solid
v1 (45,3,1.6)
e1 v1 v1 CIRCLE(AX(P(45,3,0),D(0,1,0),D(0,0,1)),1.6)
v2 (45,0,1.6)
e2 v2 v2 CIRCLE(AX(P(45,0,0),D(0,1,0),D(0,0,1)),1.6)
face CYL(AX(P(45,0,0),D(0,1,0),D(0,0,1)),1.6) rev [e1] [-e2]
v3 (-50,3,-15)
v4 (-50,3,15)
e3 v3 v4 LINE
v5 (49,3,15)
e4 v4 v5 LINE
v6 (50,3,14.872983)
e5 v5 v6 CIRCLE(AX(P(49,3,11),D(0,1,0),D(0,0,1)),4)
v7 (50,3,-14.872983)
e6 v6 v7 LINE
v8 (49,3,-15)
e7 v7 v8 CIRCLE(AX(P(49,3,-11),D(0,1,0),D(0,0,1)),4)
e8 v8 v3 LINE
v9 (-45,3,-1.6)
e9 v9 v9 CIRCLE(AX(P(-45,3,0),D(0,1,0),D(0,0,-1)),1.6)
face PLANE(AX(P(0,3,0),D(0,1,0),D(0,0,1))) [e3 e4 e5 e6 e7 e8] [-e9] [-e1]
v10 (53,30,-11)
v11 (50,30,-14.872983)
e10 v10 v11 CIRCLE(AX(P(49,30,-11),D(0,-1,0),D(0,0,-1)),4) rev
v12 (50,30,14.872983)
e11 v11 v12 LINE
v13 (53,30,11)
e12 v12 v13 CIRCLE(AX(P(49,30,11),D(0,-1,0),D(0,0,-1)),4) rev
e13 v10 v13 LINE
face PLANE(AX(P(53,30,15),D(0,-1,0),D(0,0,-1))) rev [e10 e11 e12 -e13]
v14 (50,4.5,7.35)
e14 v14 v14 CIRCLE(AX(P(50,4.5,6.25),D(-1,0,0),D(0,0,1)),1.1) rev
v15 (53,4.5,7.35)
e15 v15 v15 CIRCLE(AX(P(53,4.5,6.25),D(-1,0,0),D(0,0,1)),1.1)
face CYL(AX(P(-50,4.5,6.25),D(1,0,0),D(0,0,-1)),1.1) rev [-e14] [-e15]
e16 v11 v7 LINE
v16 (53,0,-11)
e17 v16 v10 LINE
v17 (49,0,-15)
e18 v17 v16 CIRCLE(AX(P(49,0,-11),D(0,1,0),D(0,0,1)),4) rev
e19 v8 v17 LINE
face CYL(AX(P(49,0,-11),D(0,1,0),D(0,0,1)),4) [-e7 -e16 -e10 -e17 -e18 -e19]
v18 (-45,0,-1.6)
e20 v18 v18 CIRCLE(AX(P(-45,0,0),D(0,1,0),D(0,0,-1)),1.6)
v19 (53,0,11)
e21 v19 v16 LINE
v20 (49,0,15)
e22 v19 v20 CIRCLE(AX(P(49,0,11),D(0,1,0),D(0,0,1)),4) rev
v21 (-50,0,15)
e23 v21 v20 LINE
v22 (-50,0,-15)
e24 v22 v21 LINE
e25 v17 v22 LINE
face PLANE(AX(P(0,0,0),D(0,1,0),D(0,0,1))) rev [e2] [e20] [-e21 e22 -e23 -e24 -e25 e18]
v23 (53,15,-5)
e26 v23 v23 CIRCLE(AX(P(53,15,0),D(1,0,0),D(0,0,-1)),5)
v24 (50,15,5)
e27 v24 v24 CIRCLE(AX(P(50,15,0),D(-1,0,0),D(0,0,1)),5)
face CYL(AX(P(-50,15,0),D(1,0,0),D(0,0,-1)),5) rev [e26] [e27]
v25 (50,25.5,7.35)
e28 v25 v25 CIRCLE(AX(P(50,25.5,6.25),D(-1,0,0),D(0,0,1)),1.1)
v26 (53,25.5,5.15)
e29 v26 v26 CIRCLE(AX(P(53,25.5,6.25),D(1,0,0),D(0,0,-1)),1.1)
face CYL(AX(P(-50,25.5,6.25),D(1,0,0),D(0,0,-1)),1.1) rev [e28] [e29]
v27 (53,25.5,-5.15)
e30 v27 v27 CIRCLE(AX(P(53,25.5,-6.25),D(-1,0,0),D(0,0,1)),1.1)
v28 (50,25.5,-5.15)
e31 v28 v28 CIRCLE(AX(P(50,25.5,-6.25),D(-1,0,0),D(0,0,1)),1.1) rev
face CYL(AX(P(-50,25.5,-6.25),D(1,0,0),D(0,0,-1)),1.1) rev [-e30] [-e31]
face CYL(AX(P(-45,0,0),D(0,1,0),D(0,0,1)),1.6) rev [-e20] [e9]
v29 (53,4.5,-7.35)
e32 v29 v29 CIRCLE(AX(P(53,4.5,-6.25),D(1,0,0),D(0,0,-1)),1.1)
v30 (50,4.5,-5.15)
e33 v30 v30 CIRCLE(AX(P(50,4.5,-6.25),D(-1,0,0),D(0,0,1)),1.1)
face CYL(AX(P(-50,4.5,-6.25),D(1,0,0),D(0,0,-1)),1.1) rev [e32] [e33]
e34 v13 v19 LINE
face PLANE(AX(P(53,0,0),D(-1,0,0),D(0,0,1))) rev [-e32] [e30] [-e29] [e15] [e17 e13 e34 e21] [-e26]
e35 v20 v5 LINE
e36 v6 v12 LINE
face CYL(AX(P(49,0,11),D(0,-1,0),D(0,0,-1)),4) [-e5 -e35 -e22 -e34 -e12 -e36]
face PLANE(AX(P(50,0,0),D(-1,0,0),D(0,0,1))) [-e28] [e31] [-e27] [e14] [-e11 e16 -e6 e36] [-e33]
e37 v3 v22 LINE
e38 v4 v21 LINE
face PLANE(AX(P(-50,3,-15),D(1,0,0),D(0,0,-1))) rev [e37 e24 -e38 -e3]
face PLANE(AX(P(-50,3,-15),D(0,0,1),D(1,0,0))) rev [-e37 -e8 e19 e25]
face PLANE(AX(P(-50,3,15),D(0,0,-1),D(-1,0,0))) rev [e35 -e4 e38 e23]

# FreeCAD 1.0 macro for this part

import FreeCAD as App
import Part
import Sketcher


def edges_at(feature, points):
    """Names of the edges that pass closest to the given points."""
    edges = feature.Shape.Edges
    near = lambda p: min(range(len(edges)), key=lambda i: edges[i].distToShape(Part.Vertex(*p))[0])
    return sorted({f"Edge{near(p) + 1}" for p in points})


def add_polygon(sketch, points):
    """Adds a closed chain of lines whose ends are joined by coincident constraints."""
    first, n = sketch.GeometryCount, len(points)
    for a, b in zip(points, points[1:] + points[:1]):
        sketch.addGeometry(Part.LineSegment(App.Vector(*a, 0), App.Vector(*b, 0)), False)
    for i in range(n):
        sketch.addConstraint(Sketcher.Constraint("Coincident", first + i, 2, first + (i + 1) % n, 1))

doc = App.newDocument("Part")
body = doc.addObject("PartDesign::Body", "Body")

# Sketch on XZ plane
sketch1 = body.newObject("Sketcher::SketchObject", "Sketch")
sketch1.AttachmentSupport = (doc.getObject("XZ_Plane"), [""])
sketch1.MapMode = "FlatFace"
add_polygon(sketch1, [(-50, -15), (-50, 15), (50, 15), (50, -15)])  # lines 0-3
sketch1.addConstraint([
    Sketcher.Constraint("Vertical", 0),
    Sketcher.Constraint("Horizontal", 1),
    Sketcher.Constraint("Vertical", 2),
    Sketcher.Constraint("Horizontal", 3),
    Sketcher.Constraint("Symmetric", 0, 2, 2, 2, -1, 1),
    Sketcher.Constraint("DistanceX", 1, 1, 1, 2, 100.0),
    Sketcher.Constraint("DistanceY", 0, 1, 0, 2, 30.0),
])
pad1 = body.newObject("PartDesign::Pad", "Pad")
pad1.Profile = sketch1
pad1.Length = 3
pad1.Reversed = True

# Sketch on XZ plane
sketch2 = body.newObject("Sketcher::SketchObject", "Sketch001")
sketch2.AttachmentSupport = (doc.getObject("XZ_Plane"), [""])
sketch2.MapMode = "FlatFace"
sketch2.AttachmentOffset = App.Placement(App.Vector(0, 0, -3), App.Rotation())
sketch2.addGeometry([
    Part.Circle(App.Vector(45, 0, 0), App.Vector(0, 0, 1), 1.6),
    Part.Circle(App.Vector(-45, 0, 0), App.Vector(0, 0, 1), 1.6),
], False)
sketch2.addConstraint([
    Sketcher.Constraint("Equal", 0, 1),
    Sketcher.Constraint("Symmetric", 0, 3, 1, 3, -1, 1),
    Sketcher.Constraint("PointOnObject", 0, 3, -1),
    Sketcher.Constraint("Diameter", 0, 3.2),
    Sketcher.Constraint("DistanceX", -1, 1, 0, 3, 45.0),
])
pocket1 = body.newObject("PartDesign::Pocket", "Pocket")
pocket1.Profile = sketch2
pocket1.Type = "ThroughAll"
pocket1.Reversed = True

# Sketch on YZ plane
sketch3 = body.newObject("Sketcher::SketchObject", "Sketch002")
sketch3.AttachmentSupport = (doc.getObject("YZ_Plane"), [""])
sketch3.MapMode = "FlatFace"
sketch3.AttachmentOffset = App.Placement(App.Vector(0, 0, 50), App.Rotation())
add_polygon(sketch3, [(30, 15), (0, 15), (0, -15), (30, -15)])  # lines 0-3
sketch3.addConstraint([
    Sketcher.Constraint("Horizontal", 0),
    Sketcher.Constraint("Vertical", 1),
    Sketcher.Constraint("Horizontal", 2),
    Sketcher.Constraint("Vertical", 3),
    Sketcher.Constraint("Symmetric", 0, 2, 1, 2, -1, 1),
    Sketcher.Constraint("Equal", 2, 1),
    Sketcher.Constraint("DistanceX", 0, 2, 0, 1, 30.0),
])
pad2 = body.newObject("PartDesign::Pad", "Pad001")
pad2.Profile = sketch3
pad2.Length = 3

# Sketch on YZ plane
sketch4 = body.newObject("Sketcher::SketchObject", "Sketch003")
sketch4.AttachmentSupport = (doc.getObject("YZ_Plane"), [""])
sketch4.MapMode = "FlatFace"
sketch4.AttachmentOffset = App.Placement(App.Vector(0, 0, 53), App.Rotation())
sketch4.addGeometry([
    Part.Circle(App.Vector(25.5, 6.2, 0), App.Vector(0, 0, 1), 1.1),
    Part.Circle(App.Vector(25.5, -6.2, 0), App.Vector(0, 0, 1), 1.1),
    Part.Circle(App.Vector(4.5, -6.2, 0), App.Vector(0, 0, 1), 1.1),
    Part.Circle(App.Vector(4.5, 6.2, 0), App.Vector(0, 0, 1), 1.1),
], False)
sketch4.addConstraint([
    Sketcher.Constraint("Equal", 0, 1),
    Sketcher.Constraint("Equal", 1, 2),
    Sketcher.Constraint("Equal", 2, 3),
    Sketcher.Constraint("Symmetric", 0, 3, 1, 3, -1),
    Sketcher.Constraint("Symmetric", 2, 3, 3, 3, -1),
    Sketcher.Constraint("Horizontal", 1, 3, 2, 3),
    Sketcher.Constraint("Diameter", 0, 2.2),
    Sketcher.Constraint("DistanceX", 2, 3, 1, 3, 21.0),
    Sketcher.Constraint("DistanceX", -1, 1, 0, 3, 25.5),
    Sketcher.Constraint("DistanceY", 1, 3, 0, 3, 12.5),
])
pocket2 = body.newObject("PartDesign::Pocket", "Pocket001")
pocket2.Profile = sketch4
pocket2.Type = "ThroughAll"

# Sketch on YZ plane
sketch5 = body.newObject("Sketcher::SketchObject", "Sketch004")
sketch5.AttachmentSupport = (doc.getObject("YZ_Plane"), [""])
sketch5.MapMode = "FlatFace"
sketch5.AttachmentOffset = App.Placement(App.Vector(0, 0, 53), App.Rotation())
sketch5.addGeometry(Part.Circle(App.Vector(15, 0, 0), App.Vector(0, 0, 1), 5), False)
sketch5.addConstraint([
    Sketcher.Constraint("PointOnObject", 0, 3, -1),
    Sketcher.Constraint("Diameter", 0, 10.0),
    Sketcher.Constraint("DistanceX", -1, 1, 0, 3, 15.0),
])
pocket3 = body.newObject("PartDesign::Pocket", "Pocket002")
pocket3.Profile = sketch5
pocket3.Type = "ThroughAll"
doc.recompute()

fillet = body.newObject("PartDesign::Fillet", "Fillet")
fillet.Base = (pocket3, edges_at(pocket3, [(53, 15, -15), (53, 15, 15)]))
fillet.Radius = 4

doc.recompute()
